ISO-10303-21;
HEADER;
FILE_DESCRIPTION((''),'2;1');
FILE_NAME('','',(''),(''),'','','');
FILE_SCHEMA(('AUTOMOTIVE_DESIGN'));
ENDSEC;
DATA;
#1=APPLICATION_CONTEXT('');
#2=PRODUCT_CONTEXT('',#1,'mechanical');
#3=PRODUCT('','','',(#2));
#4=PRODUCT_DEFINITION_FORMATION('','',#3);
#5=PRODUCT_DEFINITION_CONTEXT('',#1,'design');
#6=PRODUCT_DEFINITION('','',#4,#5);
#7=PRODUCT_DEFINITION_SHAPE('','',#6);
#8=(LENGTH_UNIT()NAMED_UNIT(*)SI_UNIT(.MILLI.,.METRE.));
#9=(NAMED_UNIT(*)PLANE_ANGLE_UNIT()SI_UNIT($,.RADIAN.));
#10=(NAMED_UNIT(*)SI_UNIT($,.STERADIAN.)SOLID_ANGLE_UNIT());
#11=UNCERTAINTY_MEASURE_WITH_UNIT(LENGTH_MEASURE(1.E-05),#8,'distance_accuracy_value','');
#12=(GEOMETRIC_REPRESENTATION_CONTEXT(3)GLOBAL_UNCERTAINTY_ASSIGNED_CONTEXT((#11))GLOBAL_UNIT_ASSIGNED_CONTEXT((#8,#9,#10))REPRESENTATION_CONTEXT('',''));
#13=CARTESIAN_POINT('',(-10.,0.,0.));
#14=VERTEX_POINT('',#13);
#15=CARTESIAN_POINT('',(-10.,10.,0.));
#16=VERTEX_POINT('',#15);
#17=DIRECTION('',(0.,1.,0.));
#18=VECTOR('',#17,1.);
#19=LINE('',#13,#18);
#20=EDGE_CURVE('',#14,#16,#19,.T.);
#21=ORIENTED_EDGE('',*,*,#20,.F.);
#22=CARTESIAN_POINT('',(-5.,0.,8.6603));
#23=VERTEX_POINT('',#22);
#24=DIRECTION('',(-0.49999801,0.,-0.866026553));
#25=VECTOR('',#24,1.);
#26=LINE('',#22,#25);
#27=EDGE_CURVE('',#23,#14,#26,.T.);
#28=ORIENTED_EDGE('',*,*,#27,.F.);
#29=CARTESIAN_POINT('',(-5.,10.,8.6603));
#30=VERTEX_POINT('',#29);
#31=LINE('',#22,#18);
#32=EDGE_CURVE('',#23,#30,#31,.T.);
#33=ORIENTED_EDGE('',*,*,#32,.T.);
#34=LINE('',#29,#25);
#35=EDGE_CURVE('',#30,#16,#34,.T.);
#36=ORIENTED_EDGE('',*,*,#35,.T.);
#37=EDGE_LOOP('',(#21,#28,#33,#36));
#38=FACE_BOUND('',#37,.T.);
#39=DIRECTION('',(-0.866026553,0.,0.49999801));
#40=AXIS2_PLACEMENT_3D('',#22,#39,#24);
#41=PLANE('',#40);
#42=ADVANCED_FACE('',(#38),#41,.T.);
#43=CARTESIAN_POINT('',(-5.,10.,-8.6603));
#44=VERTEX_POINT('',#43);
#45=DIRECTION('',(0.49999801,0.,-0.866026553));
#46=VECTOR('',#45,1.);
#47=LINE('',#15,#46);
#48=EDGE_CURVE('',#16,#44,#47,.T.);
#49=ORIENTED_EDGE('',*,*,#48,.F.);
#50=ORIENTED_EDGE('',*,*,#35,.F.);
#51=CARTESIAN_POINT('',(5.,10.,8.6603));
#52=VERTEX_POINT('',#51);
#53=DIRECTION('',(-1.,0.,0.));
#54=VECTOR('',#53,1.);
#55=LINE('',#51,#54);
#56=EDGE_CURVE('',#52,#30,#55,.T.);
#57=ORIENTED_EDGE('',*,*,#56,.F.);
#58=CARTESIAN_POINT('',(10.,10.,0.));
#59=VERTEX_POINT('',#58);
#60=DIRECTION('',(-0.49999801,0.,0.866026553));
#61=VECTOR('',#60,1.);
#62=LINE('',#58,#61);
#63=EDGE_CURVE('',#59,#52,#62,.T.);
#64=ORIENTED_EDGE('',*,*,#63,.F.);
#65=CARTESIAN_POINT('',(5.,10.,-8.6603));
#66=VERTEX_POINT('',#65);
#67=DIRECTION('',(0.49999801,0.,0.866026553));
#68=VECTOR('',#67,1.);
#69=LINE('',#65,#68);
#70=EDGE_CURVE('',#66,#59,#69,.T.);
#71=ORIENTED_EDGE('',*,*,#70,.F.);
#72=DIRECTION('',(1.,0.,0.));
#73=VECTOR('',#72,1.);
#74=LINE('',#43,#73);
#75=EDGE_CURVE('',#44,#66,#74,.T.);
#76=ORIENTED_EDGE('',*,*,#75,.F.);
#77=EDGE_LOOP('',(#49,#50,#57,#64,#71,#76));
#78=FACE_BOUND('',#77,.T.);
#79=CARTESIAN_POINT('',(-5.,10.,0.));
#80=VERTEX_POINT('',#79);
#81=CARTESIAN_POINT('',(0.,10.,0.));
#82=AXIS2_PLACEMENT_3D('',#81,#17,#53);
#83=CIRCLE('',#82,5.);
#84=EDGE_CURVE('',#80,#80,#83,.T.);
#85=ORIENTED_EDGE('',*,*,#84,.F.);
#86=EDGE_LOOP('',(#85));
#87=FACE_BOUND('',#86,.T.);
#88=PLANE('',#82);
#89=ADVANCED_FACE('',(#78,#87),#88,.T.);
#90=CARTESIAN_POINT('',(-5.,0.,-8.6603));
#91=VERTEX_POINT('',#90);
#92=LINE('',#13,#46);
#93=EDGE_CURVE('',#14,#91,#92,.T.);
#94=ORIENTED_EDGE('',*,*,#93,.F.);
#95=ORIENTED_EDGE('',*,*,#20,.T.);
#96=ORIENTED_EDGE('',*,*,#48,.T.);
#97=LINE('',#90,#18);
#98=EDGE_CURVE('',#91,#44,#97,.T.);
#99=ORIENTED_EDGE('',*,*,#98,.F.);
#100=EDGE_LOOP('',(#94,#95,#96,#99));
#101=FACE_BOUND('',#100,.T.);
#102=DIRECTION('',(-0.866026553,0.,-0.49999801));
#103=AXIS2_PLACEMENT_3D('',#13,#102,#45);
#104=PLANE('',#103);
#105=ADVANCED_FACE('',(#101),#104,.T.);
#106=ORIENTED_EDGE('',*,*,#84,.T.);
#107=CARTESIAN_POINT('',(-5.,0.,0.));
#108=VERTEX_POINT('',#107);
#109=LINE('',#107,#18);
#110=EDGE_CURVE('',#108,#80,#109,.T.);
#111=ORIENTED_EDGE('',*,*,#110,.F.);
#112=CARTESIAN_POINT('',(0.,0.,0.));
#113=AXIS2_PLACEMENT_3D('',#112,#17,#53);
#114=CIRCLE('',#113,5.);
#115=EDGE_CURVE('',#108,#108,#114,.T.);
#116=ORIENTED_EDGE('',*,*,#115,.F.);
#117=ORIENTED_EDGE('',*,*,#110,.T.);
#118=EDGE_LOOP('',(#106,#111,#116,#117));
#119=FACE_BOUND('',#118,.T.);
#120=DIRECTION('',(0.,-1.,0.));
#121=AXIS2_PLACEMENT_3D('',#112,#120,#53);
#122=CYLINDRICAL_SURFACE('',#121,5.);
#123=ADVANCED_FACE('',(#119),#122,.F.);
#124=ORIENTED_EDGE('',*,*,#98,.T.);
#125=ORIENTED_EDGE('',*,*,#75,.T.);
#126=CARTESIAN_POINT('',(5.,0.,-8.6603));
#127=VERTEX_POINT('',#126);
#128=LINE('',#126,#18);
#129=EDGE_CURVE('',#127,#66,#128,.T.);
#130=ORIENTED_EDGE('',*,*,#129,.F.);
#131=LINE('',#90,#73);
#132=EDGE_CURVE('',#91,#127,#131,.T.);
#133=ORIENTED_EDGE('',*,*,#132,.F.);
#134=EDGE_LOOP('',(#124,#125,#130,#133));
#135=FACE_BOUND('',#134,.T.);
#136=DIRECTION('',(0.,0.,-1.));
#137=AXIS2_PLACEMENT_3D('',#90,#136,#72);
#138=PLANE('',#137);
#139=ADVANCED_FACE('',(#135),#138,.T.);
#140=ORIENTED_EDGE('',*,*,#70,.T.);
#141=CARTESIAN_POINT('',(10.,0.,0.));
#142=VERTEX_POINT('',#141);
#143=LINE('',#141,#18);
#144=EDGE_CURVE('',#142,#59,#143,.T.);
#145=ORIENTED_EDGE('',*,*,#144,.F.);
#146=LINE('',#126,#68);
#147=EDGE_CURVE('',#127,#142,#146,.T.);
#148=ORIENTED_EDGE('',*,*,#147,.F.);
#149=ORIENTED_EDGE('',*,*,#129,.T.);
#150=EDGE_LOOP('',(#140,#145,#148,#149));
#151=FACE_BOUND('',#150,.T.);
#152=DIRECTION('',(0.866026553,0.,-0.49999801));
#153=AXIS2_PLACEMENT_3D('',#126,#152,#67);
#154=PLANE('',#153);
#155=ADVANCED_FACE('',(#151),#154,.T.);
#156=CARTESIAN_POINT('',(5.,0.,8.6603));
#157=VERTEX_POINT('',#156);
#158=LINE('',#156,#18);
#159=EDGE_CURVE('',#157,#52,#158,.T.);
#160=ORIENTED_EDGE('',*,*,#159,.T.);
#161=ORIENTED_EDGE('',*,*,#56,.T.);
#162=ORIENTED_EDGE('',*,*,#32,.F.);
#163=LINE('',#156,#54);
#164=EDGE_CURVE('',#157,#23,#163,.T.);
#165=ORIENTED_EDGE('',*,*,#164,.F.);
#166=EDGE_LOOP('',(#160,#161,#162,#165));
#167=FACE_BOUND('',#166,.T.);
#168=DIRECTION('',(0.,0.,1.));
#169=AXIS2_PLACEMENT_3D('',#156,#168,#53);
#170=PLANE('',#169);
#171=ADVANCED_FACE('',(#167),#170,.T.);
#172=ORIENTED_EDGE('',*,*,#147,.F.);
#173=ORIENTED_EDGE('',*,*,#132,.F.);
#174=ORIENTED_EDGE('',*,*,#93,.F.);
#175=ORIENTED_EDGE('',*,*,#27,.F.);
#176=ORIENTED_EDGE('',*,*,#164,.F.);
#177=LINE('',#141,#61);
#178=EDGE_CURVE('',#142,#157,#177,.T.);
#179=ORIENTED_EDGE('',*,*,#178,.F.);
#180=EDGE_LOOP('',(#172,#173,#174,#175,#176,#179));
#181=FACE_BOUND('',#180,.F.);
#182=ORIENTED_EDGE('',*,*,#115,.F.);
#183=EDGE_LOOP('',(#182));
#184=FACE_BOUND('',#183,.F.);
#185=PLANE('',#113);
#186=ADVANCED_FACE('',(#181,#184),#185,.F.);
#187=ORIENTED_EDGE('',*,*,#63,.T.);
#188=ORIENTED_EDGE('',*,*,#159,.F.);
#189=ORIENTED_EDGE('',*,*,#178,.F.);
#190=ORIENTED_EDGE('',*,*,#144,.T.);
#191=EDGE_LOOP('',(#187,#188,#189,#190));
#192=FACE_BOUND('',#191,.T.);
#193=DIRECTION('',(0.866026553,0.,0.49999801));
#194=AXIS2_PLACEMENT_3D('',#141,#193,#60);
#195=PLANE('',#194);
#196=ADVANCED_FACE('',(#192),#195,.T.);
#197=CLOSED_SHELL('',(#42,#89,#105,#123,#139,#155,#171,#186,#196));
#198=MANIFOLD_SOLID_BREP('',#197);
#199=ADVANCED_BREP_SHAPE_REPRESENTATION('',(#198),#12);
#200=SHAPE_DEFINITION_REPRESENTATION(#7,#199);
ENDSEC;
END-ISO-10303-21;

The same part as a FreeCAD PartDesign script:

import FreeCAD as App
import Part
import Sketcher
Q = App.Units.Quantity


def add_polygon(sketch, points):
    """Adds a closed chain of lines whose ends are joined by coincident constraints."""
    first, n = sketch.GeometryCount, len(points)
    for a, b in zip(points, points[1:] + points[:1]):
        sketch.addGeometry(Part.LineSegment(App.Vector(*a, 0), App.Vector(*b, 0)), False)
    for i in range(n):
        sketch.addConstraint(Sketcher.Constraint("Coincident", first + i, 2, first + (i + 1) % n, 1))

doc = App.newDocument("Part")
body = doc.addObject("PartDesign::Body", "Body")

sketch1 = body.newObject("Sketcher::SketchObject", "Sketch")
sketch1.AttachmentSupport = (doc.getObject("XZ_Plane"), [""])
sketch1.MapMode = "FlatFace"
add_polygon(sketch1, [(-5, -9), (-10, 0), (-5, 9), (5, 9), (10, 0), (5, -9)])
sketch1.addConstraint([
    Sketcher.Constraint("Horizontal", 2),
    Sketcher.Constraint("Horizontal", 5),
    Sketcher.Constraint("Symmetric", 0, 2, 3, 2, -1, 1),
    Sketcher.Constraint("Symmetric", 1, 2, 4, 2, -1, 1),
    Sketcher.Constraint("PointOnObject", 0, 2, -1),
    Sketcher.Constraint("Parallel", 0, 3),
    Sketcher.Constraint("Vertical", 2, 2, 4, 2),
    Sketcher.Constraint("DistanceX", 2, 1, 2, 2, Q("10 mm")),
    Sketcher.Constraint("Distance", 0, Q("10 mm")),
    Sketcher.Constraint("DistanceX", 0, 2, -1, 1, Q("10 mm")),
])
pad1 = body.newObject("PartDesign::Pad", "Pad")
pad1.Profile = sketch1
pad1.Length = 10
pad1.Reversed = True

sketch2 = body.newObject("Sketcher::SketchObject", "Sketch001")
sketch2.AttachmentSupport = (doc.getObject("XZ_Plane"), [""])
sketch2.MapMode = "FlatFace"
sketch2.addGeometry(Part.Circle(App.Vector(0, 0, 0), App.Vector(0, 0, 1), 5), False)
sketch2.addConstraint([
    Sketcher.Constraint("Coincident", 0, 3, -1, 1),
    Sketcher.Constraint("Diameter", 0, Q("10 mm")),
])
pocket1 = body.newObject("PartDesign::Pocket", "Pocket")
pocket1.Profile = sketch2
pocket1.Length = 10

doc.recompute()
